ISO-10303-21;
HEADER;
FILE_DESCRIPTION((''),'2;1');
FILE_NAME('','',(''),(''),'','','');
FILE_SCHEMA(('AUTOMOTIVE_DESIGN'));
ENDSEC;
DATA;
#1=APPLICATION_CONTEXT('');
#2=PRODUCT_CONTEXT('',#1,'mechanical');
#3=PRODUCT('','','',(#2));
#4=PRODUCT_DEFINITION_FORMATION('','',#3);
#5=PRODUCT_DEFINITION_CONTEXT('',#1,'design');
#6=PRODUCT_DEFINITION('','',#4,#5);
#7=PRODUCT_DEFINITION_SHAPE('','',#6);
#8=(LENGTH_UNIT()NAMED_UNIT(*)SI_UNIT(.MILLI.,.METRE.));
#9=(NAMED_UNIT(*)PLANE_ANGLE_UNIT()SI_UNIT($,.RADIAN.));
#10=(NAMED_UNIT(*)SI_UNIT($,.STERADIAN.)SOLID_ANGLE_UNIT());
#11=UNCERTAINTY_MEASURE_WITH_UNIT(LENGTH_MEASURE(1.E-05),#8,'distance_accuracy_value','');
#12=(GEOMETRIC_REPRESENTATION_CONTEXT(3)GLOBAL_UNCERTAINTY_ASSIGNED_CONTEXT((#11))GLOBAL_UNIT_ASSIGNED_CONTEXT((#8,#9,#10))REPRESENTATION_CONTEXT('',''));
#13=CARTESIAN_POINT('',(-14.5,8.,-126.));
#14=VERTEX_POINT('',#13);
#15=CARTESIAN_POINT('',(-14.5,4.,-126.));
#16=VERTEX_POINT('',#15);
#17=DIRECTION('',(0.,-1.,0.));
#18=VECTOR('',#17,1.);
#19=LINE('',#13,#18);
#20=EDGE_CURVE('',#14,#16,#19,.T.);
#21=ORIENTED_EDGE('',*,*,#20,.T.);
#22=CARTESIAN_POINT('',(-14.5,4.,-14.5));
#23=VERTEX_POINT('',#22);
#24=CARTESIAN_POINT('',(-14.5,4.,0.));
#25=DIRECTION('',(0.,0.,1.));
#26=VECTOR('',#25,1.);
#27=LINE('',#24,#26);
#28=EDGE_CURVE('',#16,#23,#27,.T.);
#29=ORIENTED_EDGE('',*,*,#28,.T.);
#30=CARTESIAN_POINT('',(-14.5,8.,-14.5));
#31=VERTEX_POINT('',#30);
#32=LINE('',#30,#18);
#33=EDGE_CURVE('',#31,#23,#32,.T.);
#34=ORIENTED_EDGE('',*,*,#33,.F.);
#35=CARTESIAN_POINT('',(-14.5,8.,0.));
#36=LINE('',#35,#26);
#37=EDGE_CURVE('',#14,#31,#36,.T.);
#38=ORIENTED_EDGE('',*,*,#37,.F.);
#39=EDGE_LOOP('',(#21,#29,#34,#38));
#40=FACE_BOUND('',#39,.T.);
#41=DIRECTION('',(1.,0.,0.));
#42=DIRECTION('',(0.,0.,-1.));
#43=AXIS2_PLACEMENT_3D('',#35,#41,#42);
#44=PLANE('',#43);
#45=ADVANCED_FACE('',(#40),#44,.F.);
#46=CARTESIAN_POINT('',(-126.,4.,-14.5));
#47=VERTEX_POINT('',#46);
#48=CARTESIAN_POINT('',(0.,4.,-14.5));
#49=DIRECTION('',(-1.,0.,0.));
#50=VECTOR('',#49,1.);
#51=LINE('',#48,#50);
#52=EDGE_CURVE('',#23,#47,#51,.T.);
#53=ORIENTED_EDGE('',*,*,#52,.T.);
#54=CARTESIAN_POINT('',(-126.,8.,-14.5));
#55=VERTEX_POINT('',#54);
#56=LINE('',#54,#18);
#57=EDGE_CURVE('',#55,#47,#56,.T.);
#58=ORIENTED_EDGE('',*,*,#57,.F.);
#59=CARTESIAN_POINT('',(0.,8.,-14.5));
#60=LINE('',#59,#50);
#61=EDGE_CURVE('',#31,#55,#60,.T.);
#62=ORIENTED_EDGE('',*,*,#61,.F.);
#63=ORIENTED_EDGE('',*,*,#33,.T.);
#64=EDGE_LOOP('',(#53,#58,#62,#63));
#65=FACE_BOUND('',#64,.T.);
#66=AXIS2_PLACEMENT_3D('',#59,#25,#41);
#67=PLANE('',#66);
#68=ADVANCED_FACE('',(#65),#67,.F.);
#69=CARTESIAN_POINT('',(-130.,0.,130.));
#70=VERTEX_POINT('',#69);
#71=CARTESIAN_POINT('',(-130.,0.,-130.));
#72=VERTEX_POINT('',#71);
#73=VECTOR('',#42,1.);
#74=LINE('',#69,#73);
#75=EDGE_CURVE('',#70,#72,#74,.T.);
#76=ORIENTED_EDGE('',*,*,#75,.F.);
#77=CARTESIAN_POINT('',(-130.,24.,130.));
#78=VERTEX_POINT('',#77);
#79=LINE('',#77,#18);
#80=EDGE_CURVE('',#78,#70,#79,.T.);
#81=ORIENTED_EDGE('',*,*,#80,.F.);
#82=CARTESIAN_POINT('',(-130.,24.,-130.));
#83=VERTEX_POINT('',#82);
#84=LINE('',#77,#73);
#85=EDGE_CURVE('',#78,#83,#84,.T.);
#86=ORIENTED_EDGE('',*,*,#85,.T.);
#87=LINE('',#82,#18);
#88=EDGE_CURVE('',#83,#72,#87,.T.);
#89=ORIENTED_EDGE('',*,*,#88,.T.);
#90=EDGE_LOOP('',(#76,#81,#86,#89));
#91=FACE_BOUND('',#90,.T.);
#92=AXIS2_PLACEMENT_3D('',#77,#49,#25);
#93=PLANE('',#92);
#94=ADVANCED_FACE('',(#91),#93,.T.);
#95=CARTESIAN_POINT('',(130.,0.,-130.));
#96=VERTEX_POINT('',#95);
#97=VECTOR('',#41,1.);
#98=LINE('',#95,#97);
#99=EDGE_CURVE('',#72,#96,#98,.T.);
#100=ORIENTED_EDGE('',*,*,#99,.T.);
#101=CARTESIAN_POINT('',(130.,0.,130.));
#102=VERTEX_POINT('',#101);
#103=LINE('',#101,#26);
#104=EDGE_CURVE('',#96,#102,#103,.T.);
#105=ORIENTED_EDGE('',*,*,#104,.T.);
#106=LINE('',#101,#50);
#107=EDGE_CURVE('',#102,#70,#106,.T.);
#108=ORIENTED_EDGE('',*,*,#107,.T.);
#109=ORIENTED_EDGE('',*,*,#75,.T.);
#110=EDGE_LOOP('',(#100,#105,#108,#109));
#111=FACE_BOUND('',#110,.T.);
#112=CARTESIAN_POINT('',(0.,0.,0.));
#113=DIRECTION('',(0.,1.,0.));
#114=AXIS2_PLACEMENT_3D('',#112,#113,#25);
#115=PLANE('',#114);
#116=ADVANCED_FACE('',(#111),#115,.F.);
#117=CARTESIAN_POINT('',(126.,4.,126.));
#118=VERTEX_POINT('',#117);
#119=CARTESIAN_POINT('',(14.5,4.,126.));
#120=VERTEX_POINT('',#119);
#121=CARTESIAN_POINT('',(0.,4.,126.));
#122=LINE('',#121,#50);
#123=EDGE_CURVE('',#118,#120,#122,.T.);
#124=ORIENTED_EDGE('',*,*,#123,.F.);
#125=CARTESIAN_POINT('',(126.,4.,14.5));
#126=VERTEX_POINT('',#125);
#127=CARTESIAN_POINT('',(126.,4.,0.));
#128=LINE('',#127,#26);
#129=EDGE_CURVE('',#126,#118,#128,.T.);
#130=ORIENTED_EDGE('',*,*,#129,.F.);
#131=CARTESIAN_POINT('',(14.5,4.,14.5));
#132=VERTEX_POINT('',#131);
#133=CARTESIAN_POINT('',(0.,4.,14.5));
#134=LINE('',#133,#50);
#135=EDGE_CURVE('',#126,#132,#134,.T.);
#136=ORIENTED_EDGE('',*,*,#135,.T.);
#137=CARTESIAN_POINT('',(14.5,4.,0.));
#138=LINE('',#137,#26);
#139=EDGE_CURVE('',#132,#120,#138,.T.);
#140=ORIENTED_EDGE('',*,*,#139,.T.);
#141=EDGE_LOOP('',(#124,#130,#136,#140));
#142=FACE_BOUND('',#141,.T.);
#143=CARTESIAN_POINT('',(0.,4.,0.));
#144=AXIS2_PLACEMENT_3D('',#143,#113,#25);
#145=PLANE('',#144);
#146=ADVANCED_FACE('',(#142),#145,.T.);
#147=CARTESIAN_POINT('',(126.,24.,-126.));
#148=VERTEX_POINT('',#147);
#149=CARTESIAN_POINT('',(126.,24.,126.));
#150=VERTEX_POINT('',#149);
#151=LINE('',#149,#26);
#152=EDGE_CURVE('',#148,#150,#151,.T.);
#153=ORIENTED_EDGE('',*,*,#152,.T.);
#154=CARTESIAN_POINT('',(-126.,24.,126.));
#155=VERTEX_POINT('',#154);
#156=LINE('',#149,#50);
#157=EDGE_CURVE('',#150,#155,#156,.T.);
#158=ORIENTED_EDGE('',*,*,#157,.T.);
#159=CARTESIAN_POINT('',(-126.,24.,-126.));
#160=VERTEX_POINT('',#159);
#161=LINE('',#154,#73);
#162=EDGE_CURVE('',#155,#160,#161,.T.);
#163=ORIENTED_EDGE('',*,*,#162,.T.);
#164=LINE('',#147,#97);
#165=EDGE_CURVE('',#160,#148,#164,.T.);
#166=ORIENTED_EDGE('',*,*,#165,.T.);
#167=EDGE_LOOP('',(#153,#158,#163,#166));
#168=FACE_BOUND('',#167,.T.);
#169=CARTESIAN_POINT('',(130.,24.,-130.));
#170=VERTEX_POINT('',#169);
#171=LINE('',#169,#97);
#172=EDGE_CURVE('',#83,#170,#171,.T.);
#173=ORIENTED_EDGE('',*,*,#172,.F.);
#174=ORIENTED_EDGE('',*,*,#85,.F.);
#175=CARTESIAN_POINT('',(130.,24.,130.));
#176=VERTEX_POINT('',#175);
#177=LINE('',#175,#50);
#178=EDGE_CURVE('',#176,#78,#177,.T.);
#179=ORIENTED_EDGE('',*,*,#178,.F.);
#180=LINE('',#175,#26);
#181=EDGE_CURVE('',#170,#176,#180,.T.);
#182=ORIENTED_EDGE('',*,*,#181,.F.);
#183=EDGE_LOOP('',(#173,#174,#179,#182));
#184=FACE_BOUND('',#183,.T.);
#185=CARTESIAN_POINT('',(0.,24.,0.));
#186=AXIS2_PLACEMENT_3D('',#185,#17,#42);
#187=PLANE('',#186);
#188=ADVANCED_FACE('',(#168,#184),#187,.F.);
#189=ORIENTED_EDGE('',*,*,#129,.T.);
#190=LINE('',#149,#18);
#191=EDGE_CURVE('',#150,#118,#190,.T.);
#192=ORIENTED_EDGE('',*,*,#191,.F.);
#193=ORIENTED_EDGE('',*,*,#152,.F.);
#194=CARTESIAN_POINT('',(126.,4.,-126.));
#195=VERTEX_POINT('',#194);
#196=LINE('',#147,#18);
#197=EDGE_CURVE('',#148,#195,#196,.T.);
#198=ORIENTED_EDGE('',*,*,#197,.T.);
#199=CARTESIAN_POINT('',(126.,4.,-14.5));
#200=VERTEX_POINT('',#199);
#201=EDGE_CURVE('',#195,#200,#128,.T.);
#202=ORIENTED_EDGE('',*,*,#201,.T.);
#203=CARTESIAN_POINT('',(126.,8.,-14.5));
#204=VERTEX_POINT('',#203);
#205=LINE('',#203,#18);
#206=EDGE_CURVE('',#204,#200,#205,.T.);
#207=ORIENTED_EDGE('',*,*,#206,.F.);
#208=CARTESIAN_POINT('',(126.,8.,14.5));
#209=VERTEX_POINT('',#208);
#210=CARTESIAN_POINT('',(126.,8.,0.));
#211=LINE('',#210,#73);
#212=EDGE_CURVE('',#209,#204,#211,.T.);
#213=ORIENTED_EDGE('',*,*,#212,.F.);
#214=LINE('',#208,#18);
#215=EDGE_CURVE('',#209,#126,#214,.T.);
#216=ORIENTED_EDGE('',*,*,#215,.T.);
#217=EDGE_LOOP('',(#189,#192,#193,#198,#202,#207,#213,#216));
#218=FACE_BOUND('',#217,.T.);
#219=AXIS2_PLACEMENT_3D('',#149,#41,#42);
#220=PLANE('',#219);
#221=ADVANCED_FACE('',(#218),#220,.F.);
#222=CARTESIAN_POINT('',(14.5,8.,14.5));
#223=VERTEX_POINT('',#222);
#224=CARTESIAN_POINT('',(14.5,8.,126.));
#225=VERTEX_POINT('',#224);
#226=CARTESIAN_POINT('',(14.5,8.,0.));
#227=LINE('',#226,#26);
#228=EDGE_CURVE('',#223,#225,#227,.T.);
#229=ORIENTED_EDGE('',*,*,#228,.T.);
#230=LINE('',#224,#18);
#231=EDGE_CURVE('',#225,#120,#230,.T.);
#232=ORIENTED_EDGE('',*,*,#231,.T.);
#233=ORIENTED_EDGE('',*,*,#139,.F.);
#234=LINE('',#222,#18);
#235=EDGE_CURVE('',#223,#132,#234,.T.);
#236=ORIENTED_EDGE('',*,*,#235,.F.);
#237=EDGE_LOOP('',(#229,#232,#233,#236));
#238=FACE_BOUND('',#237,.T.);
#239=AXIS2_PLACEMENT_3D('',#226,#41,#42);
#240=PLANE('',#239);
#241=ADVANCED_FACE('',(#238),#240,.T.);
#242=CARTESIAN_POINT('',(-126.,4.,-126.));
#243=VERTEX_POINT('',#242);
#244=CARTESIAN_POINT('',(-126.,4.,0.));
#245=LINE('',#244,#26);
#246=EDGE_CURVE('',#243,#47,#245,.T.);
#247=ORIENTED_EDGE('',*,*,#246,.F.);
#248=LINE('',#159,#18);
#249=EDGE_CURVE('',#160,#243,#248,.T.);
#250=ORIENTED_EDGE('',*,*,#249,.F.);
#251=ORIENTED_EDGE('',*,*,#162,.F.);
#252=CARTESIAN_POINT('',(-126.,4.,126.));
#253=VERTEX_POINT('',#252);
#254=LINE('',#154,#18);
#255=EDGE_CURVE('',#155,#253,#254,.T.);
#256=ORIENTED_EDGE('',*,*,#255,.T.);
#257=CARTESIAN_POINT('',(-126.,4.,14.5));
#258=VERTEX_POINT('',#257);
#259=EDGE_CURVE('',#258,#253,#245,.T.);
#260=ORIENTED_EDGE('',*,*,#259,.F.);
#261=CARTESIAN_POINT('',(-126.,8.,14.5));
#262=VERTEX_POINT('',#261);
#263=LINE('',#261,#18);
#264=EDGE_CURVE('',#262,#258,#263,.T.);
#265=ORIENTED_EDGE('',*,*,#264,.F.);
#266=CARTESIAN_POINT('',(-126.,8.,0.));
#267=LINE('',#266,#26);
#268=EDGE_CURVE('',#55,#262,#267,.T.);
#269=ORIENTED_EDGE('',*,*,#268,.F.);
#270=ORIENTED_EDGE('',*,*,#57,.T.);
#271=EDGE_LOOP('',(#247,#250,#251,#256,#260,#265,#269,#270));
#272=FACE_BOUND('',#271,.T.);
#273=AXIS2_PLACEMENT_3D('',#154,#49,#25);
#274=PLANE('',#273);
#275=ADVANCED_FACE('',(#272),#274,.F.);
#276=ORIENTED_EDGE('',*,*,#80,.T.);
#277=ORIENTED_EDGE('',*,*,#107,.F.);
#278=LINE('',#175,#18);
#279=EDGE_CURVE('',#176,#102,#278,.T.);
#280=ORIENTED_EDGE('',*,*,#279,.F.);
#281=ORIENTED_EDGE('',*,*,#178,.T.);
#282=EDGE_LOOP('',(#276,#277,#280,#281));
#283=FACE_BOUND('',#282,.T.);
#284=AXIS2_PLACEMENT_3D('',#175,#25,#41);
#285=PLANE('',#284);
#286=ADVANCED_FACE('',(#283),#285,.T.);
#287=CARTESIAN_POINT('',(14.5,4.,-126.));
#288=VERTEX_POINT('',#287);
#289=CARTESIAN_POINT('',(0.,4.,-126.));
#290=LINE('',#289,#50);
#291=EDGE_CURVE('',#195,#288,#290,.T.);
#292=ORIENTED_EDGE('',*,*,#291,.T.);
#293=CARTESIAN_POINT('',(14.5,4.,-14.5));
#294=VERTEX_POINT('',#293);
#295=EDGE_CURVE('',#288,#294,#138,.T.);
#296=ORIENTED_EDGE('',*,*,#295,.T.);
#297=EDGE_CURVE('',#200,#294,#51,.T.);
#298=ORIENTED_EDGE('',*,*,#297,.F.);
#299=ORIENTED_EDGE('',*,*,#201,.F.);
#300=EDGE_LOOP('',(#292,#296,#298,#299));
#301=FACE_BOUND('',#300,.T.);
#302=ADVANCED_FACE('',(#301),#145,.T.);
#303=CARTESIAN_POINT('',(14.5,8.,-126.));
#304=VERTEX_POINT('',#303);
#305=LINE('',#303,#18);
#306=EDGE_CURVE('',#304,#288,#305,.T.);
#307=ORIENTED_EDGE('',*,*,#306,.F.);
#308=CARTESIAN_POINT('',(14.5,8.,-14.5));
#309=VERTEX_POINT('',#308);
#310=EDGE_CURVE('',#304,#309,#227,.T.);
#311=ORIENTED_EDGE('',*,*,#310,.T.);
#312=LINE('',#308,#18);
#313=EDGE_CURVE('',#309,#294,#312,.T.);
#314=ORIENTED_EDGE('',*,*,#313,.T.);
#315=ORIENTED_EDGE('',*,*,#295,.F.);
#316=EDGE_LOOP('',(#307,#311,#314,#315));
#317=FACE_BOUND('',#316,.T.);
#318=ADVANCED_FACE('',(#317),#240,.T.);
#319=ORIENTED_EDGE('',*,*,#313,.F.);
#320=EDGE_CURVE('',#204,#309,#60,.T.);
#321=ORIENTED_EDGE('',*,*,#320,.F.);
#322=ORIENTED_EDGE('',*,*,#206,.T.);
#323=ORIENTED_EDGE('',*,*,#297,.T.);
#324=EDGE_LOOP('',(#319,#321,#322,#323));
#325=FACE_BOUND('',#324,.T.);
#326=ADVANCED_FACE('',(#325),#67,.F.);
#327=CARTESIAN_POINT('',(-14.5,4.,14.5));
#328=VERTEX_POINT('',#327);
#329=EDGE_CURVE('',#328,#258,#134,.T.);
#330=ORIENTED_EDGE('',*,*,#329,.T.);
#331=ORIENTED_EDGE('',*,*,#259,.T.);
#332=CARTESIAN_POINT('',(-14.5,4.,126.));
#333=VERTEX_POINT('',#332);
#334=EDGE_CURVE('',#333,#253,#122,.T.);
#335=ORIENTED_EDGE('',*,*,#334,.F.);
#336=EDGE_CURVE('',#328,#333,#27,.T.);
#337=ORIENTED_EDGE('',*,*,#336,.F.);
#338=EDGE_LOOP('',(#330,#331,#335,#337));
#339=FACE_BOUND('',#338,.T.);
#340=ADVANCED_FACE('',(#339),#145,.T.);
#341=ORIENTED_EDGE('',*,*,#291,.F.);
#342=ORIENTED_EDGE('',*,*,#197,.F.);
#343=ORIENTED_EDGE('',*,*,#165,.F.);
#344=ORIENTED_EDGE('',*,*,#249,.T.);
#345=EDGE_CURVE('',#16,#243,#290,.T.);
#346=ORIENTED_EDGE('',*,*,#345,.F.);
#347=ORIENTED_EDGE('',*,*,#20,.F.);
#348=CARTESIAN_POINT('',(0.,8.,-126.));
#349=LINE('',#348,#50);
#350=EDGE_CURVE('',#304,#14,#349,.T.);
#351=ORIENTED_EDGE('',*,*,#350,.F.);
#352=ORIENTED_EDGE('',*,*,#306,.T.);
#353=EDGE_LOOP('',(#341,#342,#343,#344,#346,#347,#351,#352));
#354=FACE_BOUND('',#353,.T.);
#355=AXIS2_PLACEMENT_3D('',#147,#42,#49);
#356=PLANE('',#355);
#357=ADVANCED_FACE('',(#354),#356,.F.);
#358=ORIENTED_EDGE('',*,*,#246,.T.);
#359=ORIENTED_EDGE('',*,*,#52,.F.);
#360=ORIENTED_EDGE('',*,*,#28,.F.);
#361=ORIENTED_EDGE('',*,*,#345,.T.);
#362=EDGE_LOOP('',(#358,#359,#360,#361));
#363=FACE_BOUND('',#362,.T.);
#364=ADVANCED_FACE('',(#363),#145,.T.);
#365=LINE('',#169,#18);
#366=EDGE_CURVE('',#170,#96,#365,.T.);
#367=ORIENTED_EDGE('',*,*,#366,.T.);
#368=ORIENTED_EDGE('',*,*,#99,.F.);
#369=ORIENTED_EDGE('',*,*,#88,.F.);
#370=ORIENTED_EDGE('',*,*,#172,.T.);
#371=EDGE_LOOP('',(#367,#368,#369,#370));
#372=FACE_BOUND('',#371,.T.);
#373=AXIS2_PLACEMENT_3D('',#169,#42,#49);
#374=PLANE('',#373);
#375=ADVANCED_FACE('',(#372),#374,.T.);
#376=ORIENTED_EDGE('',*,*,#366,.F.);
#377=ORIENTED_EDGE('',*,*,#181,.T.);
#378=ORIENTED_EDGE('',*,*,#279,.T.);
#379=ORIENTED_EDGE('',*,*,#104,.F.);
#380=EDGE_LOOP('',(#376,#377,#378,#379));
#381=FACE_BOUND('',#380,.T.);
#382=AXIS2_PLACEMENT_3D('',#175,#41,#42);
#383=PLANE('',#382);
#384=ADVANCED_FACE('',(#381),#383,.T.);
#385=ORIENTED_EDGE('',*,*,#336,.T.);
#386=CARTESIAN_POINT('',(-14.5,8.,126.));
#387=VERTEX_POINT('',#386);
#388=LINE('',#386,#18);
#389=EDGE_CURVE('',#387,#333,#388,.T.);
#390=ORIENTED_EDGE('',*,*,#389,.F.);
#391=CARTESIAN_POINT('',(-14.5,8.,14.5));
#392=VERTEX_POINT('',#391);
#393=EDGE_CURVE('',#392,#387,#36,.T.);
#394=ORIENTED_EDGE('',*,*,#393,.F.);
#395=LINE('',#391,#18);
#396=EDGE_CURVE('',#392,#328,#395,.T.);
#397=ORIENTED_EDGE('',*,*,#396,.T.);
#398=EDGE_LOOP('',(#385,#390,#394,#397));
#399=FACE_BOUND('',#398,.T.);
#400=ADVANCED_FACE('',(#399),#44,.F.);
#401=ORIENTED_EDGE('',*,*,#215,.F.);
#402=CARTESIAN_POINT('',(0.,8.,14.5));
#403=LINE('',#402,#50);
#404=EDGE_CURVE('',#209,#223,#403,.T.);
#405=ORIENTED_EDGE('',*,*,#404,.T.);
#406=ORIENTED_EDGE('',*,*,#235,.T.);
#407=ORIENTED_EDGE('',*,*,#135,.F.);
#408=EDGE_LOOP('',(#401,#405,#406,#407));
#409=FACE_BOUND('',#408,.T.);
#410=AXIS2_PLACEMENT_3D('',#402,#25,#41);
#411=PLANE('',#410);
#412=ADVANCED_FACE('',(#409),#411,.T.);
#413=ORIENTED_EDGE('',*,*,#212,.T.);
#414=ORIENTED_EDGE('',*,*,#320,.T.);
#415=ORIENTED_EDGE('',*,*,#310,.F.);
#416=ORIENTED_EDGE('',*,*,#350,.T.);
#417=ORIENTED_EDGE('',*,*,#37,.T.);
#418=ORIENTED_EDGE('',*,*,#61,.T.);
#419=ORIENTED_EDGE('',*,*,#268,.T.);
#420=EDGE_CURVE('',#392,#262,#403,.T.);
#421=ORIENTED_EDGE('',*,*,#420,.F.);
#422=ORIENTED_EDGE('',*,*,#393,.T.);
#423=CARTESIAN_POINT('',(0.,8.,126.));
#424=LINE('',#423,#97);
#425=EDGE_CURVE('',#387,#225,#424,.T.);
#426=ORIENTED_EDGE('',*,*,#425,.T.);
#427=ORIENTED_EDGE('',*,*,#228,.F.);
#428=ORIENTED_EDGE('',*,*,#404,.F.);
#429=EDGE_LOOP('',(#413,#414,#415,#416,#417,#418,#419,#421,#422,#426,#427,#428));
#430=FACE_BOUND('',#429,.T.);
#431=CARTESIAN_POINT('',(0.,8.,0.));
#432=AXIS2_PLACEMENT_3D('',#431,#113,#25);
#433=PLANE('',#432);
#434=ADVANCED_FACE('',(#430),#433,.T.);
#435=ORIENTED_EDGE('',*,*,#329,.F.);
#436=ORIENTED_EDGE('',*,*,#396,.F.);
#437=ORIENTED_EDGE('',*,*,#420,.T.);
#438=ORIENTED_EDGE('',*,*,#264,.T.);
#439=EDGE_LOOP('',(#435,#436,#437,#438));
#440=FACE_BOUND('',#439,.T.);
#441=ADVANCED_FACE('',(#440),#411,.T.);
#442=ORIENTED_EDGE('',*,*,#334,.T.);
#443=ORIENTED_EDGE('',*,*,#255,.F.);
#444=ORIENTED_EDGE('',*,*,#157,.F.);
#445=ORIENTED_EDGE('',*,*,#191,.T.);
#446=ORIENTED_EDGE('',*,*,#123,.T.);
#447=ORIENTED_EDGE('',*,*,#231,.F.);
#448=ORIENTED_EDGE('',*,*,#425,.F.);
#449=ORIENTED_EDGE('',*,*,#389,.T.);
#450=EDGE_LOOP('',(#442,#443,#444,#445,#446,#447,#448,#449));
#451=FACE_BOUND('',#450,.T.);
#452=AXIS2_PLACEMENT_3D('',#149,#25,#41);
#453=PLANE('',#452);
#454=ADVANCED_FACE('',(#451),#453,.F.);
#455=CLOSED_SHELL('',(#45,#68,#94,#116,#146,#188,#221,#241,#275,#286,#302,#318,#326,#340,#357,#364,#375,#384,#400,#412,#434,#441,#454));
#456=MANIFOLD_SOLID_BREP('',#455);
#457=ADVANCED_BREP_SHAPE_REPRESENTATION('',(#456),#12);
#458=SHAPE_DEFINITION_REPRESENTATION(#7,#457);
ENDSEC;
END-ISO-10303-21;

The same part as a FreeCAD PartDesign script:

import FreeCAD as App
import Part
import Sketcher
Q = App.Units.Quantity


def add_polygon(sketch, points):
    """Adds a closed chain of lines whose ends are joined by coincident constraints."""
    first, n = sketch.GeometryCount, len(points)
    for a, b in zip(points, points[1:] + points[:1]):
        sketch.addGeometry(Part.LineSegment(App.Vector(*a, 0), App.Vector(*b, 0)), False)
    for i in range(n):
        sketch.addConstraint(Sketcher.Constraint("Coincident", first + i, 2, first + (i + 1) % n, 1))

doc = App.newDocument("Part")
body = doc.addObject("PartDesign::Body", "Body")

sketch1 = body.newObject("Sketcher::SketchObject", "Sketch")
sketch1.AttachmentSupport = (doc.getObject("XZ_Plane"), [""])
sketch1.MapMode = "FlatFace"
add_polygon(sketch1, [(-126, -126), (-126, 126), (126, 126), (126, -126)])
sketch1.addConstraint(Sketcher.Constraint("Vertical", 0))
sketch1.addConstraint(Sketcher.Constraint("Horizontal", 1))
sketch1.addConstraint(Sketcher.Constraint("Vertical", 2))
sketch1.addConstraint(Sketcher.Constraint("Horizontal", 3))
sketch1.addConstraint(Sketcher.Constraint("Symmetric", 0, 2, 2, 2, -1, 1))
sketch1.addConstraint(Sketcher.Constraint("Equal", 3, 0))
sketch1.addConstraint(Sketcher.Constraint("DistanceX", 1, 1, 1, 2, Q("252 mm")))
pad1 = body.newObject("PartDesign::Pad", "Pad")
pad1.Profile = sketch1
pad1.Length = 4
pad1.Reversed = True

sketch2 = body.newObject("Sketcher::SketchObject", "Sketch001")
sketch2.AttachmentSupport = (doc.getObject("XZ_Plane"), [""])
sketch2.MapMode = "FlatFace"
sketch2.AttachmentOffset = App.Placement(App.Vector(0, 0, -4), App.Rotation())
add_polygon(sketch2, [(-126, -14), (-126, 14), (-14, 14), (-14, 126), (14, 126), (14, 14), (126, 14), (126, -14), (14, -14), (14, -126), (-14, -126), (-14, -14)])
sketch2.addConstraint(Sketcher.Constraint("Vertical", 0))
sketch2.addConstraint(Sketcher.Constraint("Horizontal", 1))
sketch2.addConstraint(Sketcher.Constraint("Vertical", 2))
sketch2.addConstraint(Sketcher.Constraint("Horizontal", 3))
sketch2.addConstraint(Sketcher.Constraint("Vertical", 4))
sketch2.addConstraint(Sketcher.Constraint("Horizontal", 5))
sketch2.addConstraint(Sketcher.Constraint("Vertical", 6))
sketch2.addConstraint(Sketcher.Constraint("Horizontal", 7))
sketch2.addConstraint(Sketcher.Constraint("Vertical", 8))
sketch2.addConstraint(Sketcher.Constraint("Horizontal", 9))
sketch2.addConstraint(Sketcher.Constraint("Vertical", 10))
sketch2.addConstraint(Sketcher.Constraint("Horizontal", 11))
sketch2.addConstraint(Sketcher.Constraint("Symmetric", 0, 2, 6, 2, -1, 1))
sketch2.addConstraint(Sketcher.Constraint("Symmetric", 2, 2, 8, 2, -1, 1))
sketch2.addConstraint(Sketcher.Constraint("Symmetric", 4, 2, 10, 2, -1, 1))
sketch2.addConstraint(Sketcher.Constraint("Symmetric", 1, 2, 4, 2, -2))
sketch2.addConstraint(Sketcher.Constraint("Equal", 9, 0))
sketch2.addConstraint(Sketcher.Constraint("Equal", 11, 2))
sketch2.addConstraint(Sketcher.Constraint("DistanceX", 3, 1, 3, 2, Q("29 mm")))
sketch2.addConstraint(Sketcher.Constraint("DistanceX", 1, 1, 1, 2, Q("111.5 mm")))
pad2 = body.newObject("PartDesign::Pad", "Pad001")
pad2.Profile = sketch2
pad2.Length = 4
pad2.Reversed = True

sketch3 = body.newObject("Sketcher::SketchObject", "Sketch002")
sketch3.AttachmentSupport = (doc.getObject("XZ_Plane"), [""])
sketch3.MapMode = "FlatFace"
add_polygon(sketch3, [(-130, 130), (-130, -130), (130, -130), (130, 130)])
add_polygon(sketch3, [(126, -126), (-126, -126), (-126, 126), (126, 126)])
sketch3.addConstraint(Sketcher.Constraint("Vertical", 0))
sketch3.addConstraint(Sketcher.Constraint("Horizontal", 1))
sketch3.addConstraint(Sketcher.Constraint("Vertical", 2))
sketch3.addConstraint(Sketcher.Constraint("Horizontal", 3))
sketch3.addConstraint(Sketcher.Constraint("Horizontal", 4))
sketch3.addConstraint(Sketcher.Constraint("Vertical", 5))
sketch3.addConstraint(Sketcher.Constraint("Horizontal", 6))
sketch3.addConstraint(Sketcher.Constraint("Vertical", 7))
sketch3.addConstraint(Sketcher.Constraint("Symmetric", 0, 2, 2, 2, -1, 1))
sketch3.addConstraint(Sketcher.Constraint("Symmetric", 4, 2, 6, 2, -1, 1))
sketch3.addConstraint(Sketcher.Constraint("Equal", 3, 0))
sketch3.addConstraint(Sketcher.Constraint("Equal", 6, 5))
sketch3.addConstraint(Sketcher.Constraint("DistanceX", 1, 1, 1, 2, Q("260 mm")))
sketch3.addConstraint(Sketcher.Constraint("DistanceX", 4, 2, 4, 1, Q("252 mm")))
pad3 = body.newObject("PartDesign::Pad", "Pad002")
pad3.Profile = sketch3
pad3.Length = 24
pad3.Reversed = True

doc.recompute()
